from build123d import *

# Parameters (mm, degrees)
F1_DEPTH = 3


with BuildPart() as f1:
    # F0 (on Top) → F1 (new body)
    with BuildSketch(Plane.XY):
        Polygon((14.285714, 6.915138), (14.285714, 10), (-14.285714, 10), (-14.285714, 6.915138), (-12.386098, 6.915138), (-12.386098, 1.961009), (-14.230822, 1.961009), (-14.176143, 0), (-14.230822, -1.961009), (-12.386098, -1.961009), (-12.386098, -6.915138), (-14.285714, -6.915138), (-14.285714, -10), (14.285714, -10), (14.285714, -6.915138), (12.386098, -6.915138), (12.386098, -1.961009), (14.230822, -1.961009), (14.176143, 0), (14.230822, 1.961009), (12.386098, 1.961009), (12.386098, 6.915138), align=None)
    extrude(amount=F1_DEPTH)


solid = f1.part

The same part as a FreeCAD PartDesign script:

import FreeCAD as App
import Part
import Sketcher
from FreeCAD import Vector
Q = App.Units.Quantity

doc = App.newDocument("Part")
body = doc.addObject("PartDesign::Body", "Body")

# Sketch on XY plane
sketch1 = body.newObject("Sketcher::SketchObject", "Sketch")
sketch1.AttachmentSupport = (doc.getObject("XY_Plane"), [""])
sketch1.MapMode = "FlatFace"
sketch1.addGeometry(Part.LineSegment(Vector(14.3, 6.9, 0), Vector(14.3, 10, 0)), False)
sketch1.addGeometry(Part.LineSegment(Vector(14.3, 10, 0), Vector(-14.3, 10, 0)), False)
sketch1.addGeometry(Part.LineSegment(Vector(-14.3, 10, 0), Vector(-14.3, 6.9, 0)), False)
sketch1.addGeometry(Part.LineSegment(Vector(-14.3, 6.9, 0), Vector(-12.4, 6.9, 0)), False)
sketch1.addGeometry(Part.LineSegment(Vector(-12.4, 6.9, 0), Vector(-12.4, 2, 0)), False)
sketch1.addGeometry(Part.LineSegment(Vector(-12.4, 2, 0), Vector(-14.2, 2, 0)), False)
sketch1.addGeometry(Part.LineSegment(Vector(-14.2, 2, 0), Vector(-14.2, 0, 0)), False)
sketch1.addGeometry(Part.LineSegment(Vector(-14.2, 0, 0), Vector(-14.2, -2, 0)), False)
sketch1.addGeometry(Part.LineSegment(Vector(-14.2, -2, 0), Vector(-12.4, -2, 0)), False)
sketch1.addGeometry(Part.LineSegment(Vector(-12.4, -2, 0), Vector(-12.4, -6.9, 0)), False)
sketch1.addGeometry(Part.LineSegment(Vector(-12.4, -6.9, 0), Vector(-14.3, -6.9, 0)), False)
sketch1.addGeometry(Part.LineSegment(Vector(-14.3, -6.9, 0), Vector(-14.3, -10, 0)), False)
sketch1.addGeometry(Part.LineSegment(Vector(-14.3, -10, 0), Vector(14.3, -10, 0)), False)
sketch1.addGeometry(Part.LineSegment(Vector(14.3, -10, 0), Vector(14.3, -6.9, 0)), False)
sketch1.addGeometry(Part.LineSegment(Vector(14.3, -6.9, 0), Vector(12.4, -6.9, 0)), False)
sketch1.addGeometry(Part.LineSegment(Vector(12.4, -6.9, 0), Vector(12.4, -2, 0)), False)
sketch1.addGeometry(Part.LineSegment(Vector(12.4, -2, 0), Vector(14.2, -2, 0)), False)
sketch1.addGeometry(Part.LineSegment(Vector(14.2, -2, 0), Vector(14.2, 0, 0)), False)
sketch1.addGeometry(Part.LineSegment(Vector(14.2, 0, 0), Vector(14.2, 2, 0)), False)
sketch1.addGeometry(Part.LineSegment(Vector(14.2, 2, 0), Vector(12.4, 2, 0)), False)
sketch1.addGeometry(Part.LineSegment(Vector(12.4, 2, 0), Vector(12.4, 6.9, 0)), False)
sketch1.addGeometry(Part.LineSegment(Vector(12.4, 6.9, 0), Vector(14.3, 6.9, 0)), False)
sketch1.addConstraint(Sketcher.Constraint("Coincident", 0, 2, 1, 1))
sketch1.addConstraint(Sketcher.Constraint("Coincident", 1, 2, 2, 1))
sketch1.addConstraint(Sketcher.Constraint("Coincident", 2, 2, 3, 1))
sketch1.addConstraint(Sketcher.Constraint("Coincident", 3, 2, 4, 1))
sketch1.addConstraint(Sketcher.Constraint("Coincident", 4, 2, 5, 1))
sketch1.addConstraint(Sketcher.Constraint("Coincident", 5, 2, 6, 1))
sketch1.addConstraint(Sketcher.Constraint("Coincident", 6, 2, 7, 1))
sketch1.addConstraint(Sketcher.Constraint("Coincident", 7, 2, 8, 1))
sketch1.addConstraint(Sketcher.Constraint("Coincident", 8, 2, 9, 1))
sketch1.addConstraint(Sketcher.Constraint("Coincident", 9, 2, 10, 1))
sketch1.addConstraint(Sketcher.Constraint("Coincident", 10, 2, 11, 1))
sketch1.addConstraint(Sketcher.Constraint("Coincident", 11, 2, 12, 1))
sketch1.addConstraint(Sketcher.Constraint("Coincident", 12, 2, 13, 1))
sketch1.addConstraint(Sketcher.Constraint("Coincident", 13, 2, 14, 1))
sketch1.addConstraint(Sketcher.Constraint("Coincident", 14, 2, 15, 1))
sketch1.addConstraint(Sketcher.Constraint("Coincident", 15, 2, 16, 1))
sketch1.addConstraint(Sketcher.Constraint("Coincident", 16, 2, 17, 1))
sketch1.addConstraint(Sketcher.Constraint("Coincident", 17, 2, 18, 1))
sketch1.addConstraint(Sketcher.Constraint("Coincident", 18, 2, 19, 1))
sketch1.addConstraint(Sketcher.Constraint("Coincident", 19, 2, 20, 1))
sketch1.addConstraint(Sketcher.Constraint("Coincident", 20, 2, 21, 1))
sketch1.addConstraint(Sketcher.Constraint("Coincident", 21, 2, 0, 1))
sketch1.addConstraint(Sketcher.Constraint("Vertical", 0))
sketch1.addConstraint(Sketcher.Constraint("Horizontal", 1))
sketch1.addConstraint(Sketcher.Constraint("Vertical", 2))
sketch1.addConstraint(Sketcher.Constraint("Horizontal", 3))
sketch1.addConstraint(Sketcher.Constraint("Vertical", 4))
sketch1.addConstraint(Sketcher.Constraint("Horizontal", 5))
sketch1.addConstraint(Sketcher.Constraint("Horizontal", 8))
sketch1.addConstraint(Sketcher.Constraint("Vertical", 9))
sketch1.addConstraint(Sketcher.Constraint("Horizontal", 10))
sketch1.addConstraint(Sketcher.Constraint("Vertical", 11))
sketch1.addConstraint(Sketcher.Constraint("Horizontal", 12))
sketch1.addConstraint(Sketcher.Constraint("Vertical", 13))
sketch1.addConstraint(Sketcher.Constraint("Horizontal", 14))
sketch1.addConstraint(Sketcher.Constraint("Vertical", 15))
sketch1.addConstraint(Sketcher.Constraint("Horizontal", 16))
sketch1.addConstraint(Sketcher.Constraint("Horizontal", 19))
sketch1.addConstraint(Sketcher.Constraint("Vertical", 20))
sketch1.addConstraint(Sketcher.Constraint("Horizontal", 21))
sketch1.addConstraint(Sketcher.Constraint("Symmetric", 0, 2, 11, 2, -1, 1))
sketch1.addConstraint(Sketcher.Constraint("Symmetric", 2, 2, 13, 2, -1, 1))
sketch1.addConstraint(Sketcher.Constraint("Symmetric", 4, 2, 15, 2, -1, 1))
sketch1.addConstraint(Sketcher.Constraint("Symmetric", 6, 2, 17, 2, -1, 1))
sketch1.addConstraint(Sketcher.Constraint("Symmetric", 7, 2, 18, 2, -1, 1))
sketch1.addConstraint(Sketcher.Constraint("Symmetric", 9, 2, 20, 2, -1, 1))
sketch1.addConstraint(Sketcher.Constraint("Symmetric", 10, 2, 13, 2, -2))
sketch1.addConstraint(Sketcher.Constraint("Symmetric", 8, 2, 15, 2, -2))
sketch1.addConstraint(Sketcher.Constraint("PointOnObject", 6, 2, -1))
sketch1.addConstraint(Sketcher.Constraint("Parallel", 6, 17))
sketch1.addConstraint(Sketcher.Constraint("Vertical", 5, 2, 7, 2))
sketch1.addConstraint(Sketcher.Constraint("DistanceY", -1, 1, 0, 2, Q("10 mm")))
sketch1.addConstraint(Sketcher.Constraint("DistanceX", 1, 2, 1, 1, Q("28.571428 mm")))
sketch1.addConstraint(Sketcher.Constraint("DistanceY", 4, 2, 4, 1, Q("4.954129 mm")))
sketch1.addConstraint(Sketcher.Constraint("Distance", 6, Q("1.961771 mm")))
sketch1.addConstraint(Sketcher.Constraint("DistanceX", 3, 1, 3, 2, Q("1.899616 mm")))
sketch1.addConstraint(Sketcher.Constraint("DistanceX", 5, 2, 5, 1, Q("1.844724 mm")))
sketch1.addConstraint(Sketcher.Constraint("DistanceY", 0, 1, 0, 2, Q("3.084862 mm")))
pad1 = body.newObject("PartDesign::Pad", "Pad")
pad1.Profile = sketch1
pad1.Length = 3

doc.recompute()
